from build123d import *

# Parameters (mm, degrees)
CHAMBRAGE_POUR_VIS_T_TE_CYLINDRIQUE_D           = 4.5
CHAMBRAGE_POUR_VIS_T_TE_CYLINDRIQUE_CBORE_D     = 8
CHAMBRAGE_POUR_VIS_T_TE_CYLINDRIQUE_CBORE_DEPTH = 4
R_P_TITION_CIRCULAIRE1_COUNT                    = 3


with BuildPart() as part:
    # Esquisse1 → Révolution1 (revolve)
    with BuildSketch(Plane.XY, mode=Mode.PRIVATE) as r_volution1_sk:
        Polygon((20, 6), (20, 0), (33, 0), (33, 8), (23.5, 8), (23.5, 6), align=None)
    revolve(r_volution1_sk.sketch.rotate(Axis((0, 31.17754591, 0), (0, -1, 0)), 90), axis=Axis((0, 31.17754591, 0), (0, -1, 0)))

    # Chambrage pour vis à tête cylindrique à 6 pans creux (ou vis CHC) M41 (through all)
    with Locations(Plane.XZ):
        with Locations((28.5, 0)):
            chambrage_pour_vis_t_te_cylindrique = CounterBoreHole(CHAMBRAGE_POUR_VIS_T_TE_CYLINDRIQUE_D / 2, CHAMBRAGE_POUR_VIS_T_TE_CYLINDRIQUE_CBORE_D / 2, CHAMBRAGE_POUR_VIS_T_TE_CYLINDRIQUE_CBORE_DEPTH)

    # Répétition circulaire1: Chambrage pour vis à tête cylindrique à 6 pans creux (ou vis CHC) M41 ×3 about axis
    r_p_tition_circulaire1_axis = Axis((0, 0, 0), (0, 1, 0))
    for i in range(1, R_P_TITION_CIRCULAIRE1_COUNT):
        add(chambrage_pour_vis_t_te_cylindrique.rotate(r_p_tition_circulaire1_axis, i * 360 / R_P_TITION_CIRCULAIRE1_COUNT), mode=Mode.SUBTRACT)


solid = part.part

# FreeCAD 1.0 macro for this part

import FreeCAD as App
import Part
import Sketcher
from FreeCAD import Vector
Q = App.Units.Quantity

doc = App.newDocument("Part")
body = doc.addObject("PartDesign::Body", "Body")

sketch1 = body.newObject("Sketcher::SketchObject", "Sketch")
sketch1.AttachmentSupport = (doc.getObject("XY_Plane"), [""])
sketch1.MapMode = "FlatFace"
sketch1.addGeometry(Part.LineSegment(Vector(20, 6, 0), Vector(20, 0, 0)), False)
sketch1.addGeometry(Part.LineSegment(Vector(20, 0, 0), Vector(33, 0, 0)), False)
sketch1.addGeometry(Part.LineSegment(Vector(33, 0, 0), Vector(33, 8, 0)), False)
sketch1.addGeometry(Part.LineSegment(Vector(33, 8, 0), Vector(23.5, 8, 0)), False)
sketch1.addGeometry(Part.LineSegment(Vector(23.5, 8, 0), Vector(23.5, 6, 0)), False)
sketch1.addGeometry(Part.LineSegment(Vector(23.5, 6, 0), Vector(20, 6, 0)), False)
sketch1.addConstraint(Sketcher.Constraint("Coincident", 0, 2, 1, 1))
sketch1.addConstraint(Sketcher.Constraint("Coincident", 1, 2, 2, 1))
sketch1.addConstraint(Sketcher.Constraint("Coincident", 2, 2, 3, 1))
sketch1.addConstraint(Sketcher.Constraint("Coincident", 3, 2, 4, 1))
sketch1.addConstraint(Sketcher.Constraint("Coincident", 4, 2, 5, 1))
sketch1.addConstraint(Sketcher.Constraint("Coincident", 5, 2, 0, 1))
sketch1.addConstraint(Sketcher.Constraint("Vertical", 0))
sketch1.addConstraint(Sketcher.Constraint("Horizontal", 1))
sketch1.addConstraint(Sketcher.Constraint("Vertical", 2))
sketch1.addConstraint(Sketcher.Constraint("Horizontal", 3))
sketch1.addConstraint(Sketcher.Constraint("Vertical", 4))
sketch1.addConstraint(Sketcher.Constraint("Horizontal", 5))
sketch1.addConstraint(Sketcher.Constraint("PointOnObject", 0, 2, -1))
sketch1.addConstraint(Sketcher.Constraint("DistanceX", 1, 1, 1, 2, Q("13 mm")))
sketch1.addConstraint(Sketcher.Constraint("DistanceY", 0, 2, 0, 1, Q("6 mm")))
sketch1.addConstraint(Sketcher.Constraint("DistanceY", 2, 1, 2, 2, Q("8 mm")))
sketch1.addConstraint(Sketcher.Constraint("DistanceX", 3, 2, 3, 1, Q("9.5 mm")))
sketch1.addConstraint(Sketcher.Constraint("DistanceX", -1, 1, 0, 2, Q("20 mm")))
revolution = body.newObject("PartDesign::Revolution", "Revolution")
revolution.Profile = sketch1
revolution.ReferenceAxis = (sketch1, ["V_Axis"])
revolution.Angle = 360

sketch2 = body.newObject("Sketcher::SketchObject", "Sketch001")
sketch2.AttachmentSupport = (doc.getObject("XZ_Plane"), [""])
sketch2.MapMode = "FlatFace"
sketch2.addGeometry(Part.Circle(Vector(28.5, 0, 0), Vector(0, 0, 1), 2.2), False)
sketch2.addConstraint(Sketcher.Constraint("PointOnObject", 0, 3, -1))
sketch2.addConstraint(Sketcher.Constraint("Diameter", 0, Q("4.5 mm")))
sketch2.addConstraint(Sketcher.Constraint("DistanceX", -1, 1, 0, 3, Q("28.5 mm")))
doc.recompute()
hole = body.newObject("PartDesign::Hole", "Hole")
hole.Profile = sketch2
hole.ThreadType = "None"
hole.Diameter = 4.5
hole.DepthType = "ThroughAll"
hole.HoleCutType = "Counterbore"
hole.HoleCutDiameter = 8
hole.HoleCutDepth = 4
doc.recompute()

polarpattern = body.newObject("PartDesign::PolarPattern", "PolarPattern")
polarpattern.Originals = [hole]
polarpattern.Axis = (doc.getObject("Y_Axis"), [""])
polarpattern.Angle = 360
polarpattern.Occurrences = 3
body.Tip = polarpattern

doc.recompute()
